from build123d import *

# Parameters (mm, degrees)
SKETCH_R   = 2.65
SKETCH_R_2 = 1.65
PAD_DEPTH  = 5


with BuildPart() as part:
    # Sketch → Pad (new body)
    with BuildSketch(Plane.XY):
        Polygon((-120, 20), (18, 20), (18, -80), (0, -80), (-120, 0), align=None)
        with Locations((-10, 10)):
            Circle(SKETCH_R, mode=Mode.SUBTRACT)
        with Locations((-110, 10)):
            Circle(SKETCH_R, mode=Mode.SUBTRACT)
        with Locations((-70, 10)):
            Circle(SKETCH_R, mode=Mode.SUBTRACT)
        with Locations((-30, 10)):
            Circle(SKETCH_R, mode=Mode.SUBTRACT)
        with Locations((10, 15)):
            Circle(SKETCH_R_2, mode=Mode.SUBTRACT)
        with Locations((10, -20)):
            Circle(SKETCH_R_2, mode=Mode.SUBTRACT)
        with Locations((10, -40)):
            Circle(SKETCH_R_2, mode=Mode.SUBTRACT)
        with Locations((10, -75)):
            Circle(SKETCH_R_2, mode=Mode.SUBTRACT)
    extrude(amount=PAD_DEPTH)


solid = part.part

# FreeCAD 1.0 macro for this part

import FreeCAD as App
import Part
import Sketcher


def add_polygon(sketch, points):
    """Adds a closed chain of lines whose ends are joined by coincident constraints."""
    first, n = sketch.GeometryCount, len(points)
    for a, b in zip(points, points[1:] + points[:1]):
        sketch.addGeometry(Part.LineSegment(App.Vector(*a, 0), App.Vector(*b, 0)), False)
    for i in range(n):
        sketch.addConstraint(Sketcher.Constraint("Coincident", first + i, 2, first + (i + 1) % n, 1))

doc = App.newDocument("Part")
body = doc.addObject("PartDesign::Body", "Body")

sketch1 = doc.addObject("Sketcher::SketchObject", "Sketch")
body.addObject(sketch1)
sketch1.AttachmentSupport = (doc.XY_Plane, [""])
sketch1.MapMode = "FlatFace"
add_polygon(sketch1, [(18, 20), (-120, 20), (-120, 0), (0, -80), (18, -80)])
sketch1.addGeometry(Part.Circle(App.Vector(10, -75, 0), App.Vector(0, 0, 1), 1.6), False)
sketch1.addGeometry(Part.Circle(App.Vector(10, -40, 0), App.Vector(0, 0, 1), 1.6), False)
sketch1.addGeometry(Part.Circle(App.Vector(10, -20, 0), App.Vector(0, 0, 1), 1.6), False)
sketch1.addGeometry(Part.Circle(App.Vector(10, 15, 0), App.Vector(0, 0, 1), 1.6), False)
sketch1.addGeometry(Part.Circle(App.Vector(-10, 10, 0), App.Vector(0, 0, 1), 2.6), False)
sketch1.addGeometry(Part.Circle(App.Vector(-30, 10, 0), App.Vector(0, 0, 1), 2.6), False)
sketch1.addGeometry(Part.Circle(App.Vector(-70, 10, 0), App.Vector(0, 0, 1), 2.6), False)
sketch1.addGeometry(Part.Circle(App.Vector(-110, 10, 0), App.Vector(0, 0, 1), 2.6), False)
sketch1.addConstraint([
    Sketcher.Constraint("Horizontal", 0),
    Sketcher.Constraint("Vertical", 1),
    Sketcher.Constraint("Horizontal", 3),
    Sketcher.Constraint("Vertical", 4),
    Sketcher.Constraint("Equal", 5, 6),
    Sketcher.Constraint("Equal", 6, 7),
    Sketcher.Constraint("Equal", 7, 8),
    Sketcher.Constraint("Equal", 9, 10),
    Sketcher.Constraint("Equal", 10, 11),
    Sketcher.Constraint("Equal", 11, 12),
    Sketcher.Constraint("PointOnObject", 1, 2, -1),
    Sketcher.Constraint("PointOnObject", 2, 2, -2),
    Sketcher.Constraint("Horizontal", 9, 3, 10, 3),
    Sketcher.Constraint("Horizontal", 10, 3, 11, 3),
    Sketcher.Constraint("Horizontal", 11, 3, 12, 3),
    Sketcher.Constraint("Vertical", 5, 3, 6, 3),
    Sketcher.Constraint("Vertical", 6, 3, 7, 3),
    Sketcher.Constraint("Vertical", 7, 3, 8, 3),
    Sketcher.Constraint("Diameter", 5, 3.3),
    Sketcher.Constraint("Diameter", 9, 5.3),
    Sketcher.Constraint("DistanceX", 0, 2, 0, 1, 138.0),
    Sketcher.Constraint("DistanceX", 3, 1, 3, 2, 18.0),
    Sketcher.Constraint("DistanceY", 1, 2, 1, 1, 20.0),
    Sketcher.Constraint("DistanceY", 4, 1, 4, 2, 100.0),
    Sketcher.Constraint("DistanceX", -1, 1, 5, 3, 10.0),
    Sketcher.Constraint("DistanceY", 5, 3, -1, 1, 75.0),
    Sketcher.Constraint("DistanceY", 6, 3, -1, 1, 40.0),
    Sketcher.Constraint("DistanceY", 7, 3, -1, 1, 20.0),
    Sketcher.Constraint("DistanceY", -1, 1, 8, 3, 15.0),
    Sketcher.Constraint("DistanceX", 9, 3, -1, 1, 10.0),
    Sketcher.Constraint("DistanceY", -1, 1, 9, 3, 10.0),
    Sketcher.Constraint("DistanceX", 10, 3, -1, 1, 30.0),
    Sketcher.Constraint("DistanceX", 11, 3, -1, 1, 70.0),
    Sketcher.Constraint("DistanceX", 12, 3, -1, 1, 110.0),
])
pad1 = doc.addObject("PartDesign::Pad", "Pad")
body.addObject(pad1)
pad1.Profile = sketch1
pad1.Length = 5

doc.recompute()
